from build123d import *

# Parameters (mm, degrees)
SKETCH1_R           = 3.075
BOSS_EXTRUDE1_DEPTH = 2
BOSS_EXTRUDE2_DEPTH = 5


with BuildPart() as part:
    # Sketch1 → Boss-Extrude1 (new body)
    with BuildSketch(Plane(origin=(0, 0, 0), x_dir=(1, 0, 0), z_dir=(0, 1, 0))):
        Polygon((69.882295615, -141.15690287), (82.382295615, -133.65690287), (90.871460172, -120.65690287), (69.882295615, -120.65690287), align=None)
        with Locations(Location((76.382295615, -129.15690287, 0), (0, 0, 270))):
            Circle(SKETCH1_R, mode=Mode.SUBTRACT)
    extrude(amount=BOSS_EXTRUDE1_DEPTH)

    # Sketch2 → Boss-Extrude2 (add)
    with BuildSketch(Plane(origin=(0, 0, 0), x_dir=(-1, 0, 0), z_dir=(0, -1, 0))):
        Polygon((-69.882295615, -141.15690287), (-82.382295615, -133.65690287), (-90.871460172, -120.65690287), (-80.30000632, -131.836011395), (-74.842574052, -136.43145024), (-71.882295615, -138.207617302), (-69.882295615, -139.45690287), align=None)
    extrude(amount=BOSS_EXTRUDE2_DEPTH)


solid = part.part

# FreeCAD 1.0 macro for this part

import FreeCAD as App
import Part
import Sketcher
Q = App.Units.Quantity


def add_polygon(sketch, points):
    """Adds a closed chain of lines whose ends are joined by coincident constraints."""
    first, n = sketch.GeometryCount, len(points)
    for a, b in zip(points, points[1:] + points[:1]):
        sketch.addGeometry(Part.LineSegment(App.Vector(*a, 0), App.Vector(*b, 0)), False)
    for i in range(n):
        sketch.addConstraint(Sketcher.Constraint("Coincident", first + i, 2, first + (i + 1) % n, 1))

doc = App.newDocument("Part")
body = doc.addObject("PartDesign::Body", "Body")

# Sketch on XZ plane
sketch1 = body.newObject("Sketcher::SketchObject", "Sketch")
sketch1.AttachmentSupport = (doc.getObject("XZ_Plane"), [""])
sketch1.MapMode = "FlatFace"
add_polygon(sketch1, [(69.882296, 141.156903), (82.382296, 133.656903), (90.87146, 120.656903), (69.882296, 120.656903)])  # lines 0-3
sketch1.addGeometry(Part.Circle(App.Vector(76.382296, 129.156903, 0), App.Vector(0, 0, 1), 3.075), False)  # 4
sketch1.addConstraint(Sketcher.Constraint("Horizontal", 2))
sketch1.addConstraint(Sketcher.Constraint("Vertical", 3))
sketch1.addConstraint(Sketcher.Constraint("Diameter", 4, Q("6.15 mm")))
sketch1.addConstraint(Sketcher.Constraint("DistanceY", 3, 1, 3, 2, Q("20.5 mm")))
sketch1.addConstraint(Sketcher.Constraint("DistanceX", 4, 3, 0, 2, Q("6 mm")))
sketch1.addConstraint(Sketcher.Constraint("DistanceY", 1, 2, 0, 2, Q("13 mm")))
sketch1.addConstraint(Sketcher.Constraint("DistanceY", 4, 3, 3, 2, Q("12 mm")))
sketch1.addConstraint(Sketcher.Constraint("DistanceX", 2, 2, 4, 3, Q("6.5 mm")))
sketch1.addConstraint(Sketcher.Constraint("DistanceX", 2, 2, 2, 1, Q("20.989165 mm")))
sketch1.addConstraint(Sketcher.Constraint("DistanceX", -1, 1, 1, 2, Q("90.87146 mm")))
sketch1.addConstraint(Sketcher.Constraint("DistanceY", -1, 1, 4, 3, Q("129.156903 mm")))
pad1 = body.newObject("PartDesign::Pad", "Pad")
pad1.Profile = sketch1
pad1.Length = 2
pad1.Reversed = True

# Sketch on XZ plane
sketch2 = body.newObject("Sketcher::SketchObject", "Sketch001")
sketch2.AttachmentSupport = (doc.getObject("XZ_Plane"), [""])
sketch2.MapMode = "FlatFace"
add_polygon(sketch2, [(82.382296, 133.656903), (69.882296, 141.156903), (69.882296, 139.456903), (71.882296, 138.207617), (74.842574, 136.43145), (80.300006, 131.836011), (90.87146, 120.656903)])  # lines 0-6
sketch2.addConstraint(Sketcher.Constraint("Vertical", 1))
sketch2.addConstraint(Sketcher.Constraint("Parallel", 0, 3))
sketch2.addConstraint(Sketcher.Constraint("DistanceY", 1, 2, 1, 1, Q("1.7 mm")))
sketch2.addConstraint(Sketcher.Constraint("DistanceX", 1, 2, 2, 2, Q("2 mm")))
sketch2.addConstraint(Sketcher.Constraint("DistanceY", 5, 2, 1, 2, Q("18.8 mm")))
sketch2.addConstraint(Sketcher.Constraint("DistanceX", 2, 2, 6, 2, Q("10.5 mm")))
sketch2.addConstraint(Sketcher.Constraint("DistanceY", 6, 2, 1, 2, Q("5.8 mm")))
sketch2.addConstraint(Sketcher.Constraint("Distance", 3, Q("3.452248 mm")))
sketch2.addConstraint(Sketcher.Constraint("Distance", 5, Q("15.385971 mm")))
sketch2.addConstraint(Sketcher.Constraint("DistanceY", -1, 1, 3, 2, Q("136.43145 mm")))
sketch2.addConstraint(Sketcher.Constraint("DistanceY", -1, 1, 4, 2, Q("131.836011 mm")))
sketch2.addConstraint(Sketcher.Constraint("DistanceX", -1, 1, 5, 2, Q("90.87146 mm")))
sketch2.addConstraint(Sketcher.Constraint("DistanceX", 2, 2, 4, 2, Q("8.417711 mm")))
sketch2.addConstraint(Sketcher.Constraint("DistanceY", 4, 2, 1, 2, Q("7.620891 mm")))
pad2 = body.newObject("PartDesign::Pad", "Pad001")
pad2.Profile = sketch2
pad2.Length = 5

doc.recompute()
